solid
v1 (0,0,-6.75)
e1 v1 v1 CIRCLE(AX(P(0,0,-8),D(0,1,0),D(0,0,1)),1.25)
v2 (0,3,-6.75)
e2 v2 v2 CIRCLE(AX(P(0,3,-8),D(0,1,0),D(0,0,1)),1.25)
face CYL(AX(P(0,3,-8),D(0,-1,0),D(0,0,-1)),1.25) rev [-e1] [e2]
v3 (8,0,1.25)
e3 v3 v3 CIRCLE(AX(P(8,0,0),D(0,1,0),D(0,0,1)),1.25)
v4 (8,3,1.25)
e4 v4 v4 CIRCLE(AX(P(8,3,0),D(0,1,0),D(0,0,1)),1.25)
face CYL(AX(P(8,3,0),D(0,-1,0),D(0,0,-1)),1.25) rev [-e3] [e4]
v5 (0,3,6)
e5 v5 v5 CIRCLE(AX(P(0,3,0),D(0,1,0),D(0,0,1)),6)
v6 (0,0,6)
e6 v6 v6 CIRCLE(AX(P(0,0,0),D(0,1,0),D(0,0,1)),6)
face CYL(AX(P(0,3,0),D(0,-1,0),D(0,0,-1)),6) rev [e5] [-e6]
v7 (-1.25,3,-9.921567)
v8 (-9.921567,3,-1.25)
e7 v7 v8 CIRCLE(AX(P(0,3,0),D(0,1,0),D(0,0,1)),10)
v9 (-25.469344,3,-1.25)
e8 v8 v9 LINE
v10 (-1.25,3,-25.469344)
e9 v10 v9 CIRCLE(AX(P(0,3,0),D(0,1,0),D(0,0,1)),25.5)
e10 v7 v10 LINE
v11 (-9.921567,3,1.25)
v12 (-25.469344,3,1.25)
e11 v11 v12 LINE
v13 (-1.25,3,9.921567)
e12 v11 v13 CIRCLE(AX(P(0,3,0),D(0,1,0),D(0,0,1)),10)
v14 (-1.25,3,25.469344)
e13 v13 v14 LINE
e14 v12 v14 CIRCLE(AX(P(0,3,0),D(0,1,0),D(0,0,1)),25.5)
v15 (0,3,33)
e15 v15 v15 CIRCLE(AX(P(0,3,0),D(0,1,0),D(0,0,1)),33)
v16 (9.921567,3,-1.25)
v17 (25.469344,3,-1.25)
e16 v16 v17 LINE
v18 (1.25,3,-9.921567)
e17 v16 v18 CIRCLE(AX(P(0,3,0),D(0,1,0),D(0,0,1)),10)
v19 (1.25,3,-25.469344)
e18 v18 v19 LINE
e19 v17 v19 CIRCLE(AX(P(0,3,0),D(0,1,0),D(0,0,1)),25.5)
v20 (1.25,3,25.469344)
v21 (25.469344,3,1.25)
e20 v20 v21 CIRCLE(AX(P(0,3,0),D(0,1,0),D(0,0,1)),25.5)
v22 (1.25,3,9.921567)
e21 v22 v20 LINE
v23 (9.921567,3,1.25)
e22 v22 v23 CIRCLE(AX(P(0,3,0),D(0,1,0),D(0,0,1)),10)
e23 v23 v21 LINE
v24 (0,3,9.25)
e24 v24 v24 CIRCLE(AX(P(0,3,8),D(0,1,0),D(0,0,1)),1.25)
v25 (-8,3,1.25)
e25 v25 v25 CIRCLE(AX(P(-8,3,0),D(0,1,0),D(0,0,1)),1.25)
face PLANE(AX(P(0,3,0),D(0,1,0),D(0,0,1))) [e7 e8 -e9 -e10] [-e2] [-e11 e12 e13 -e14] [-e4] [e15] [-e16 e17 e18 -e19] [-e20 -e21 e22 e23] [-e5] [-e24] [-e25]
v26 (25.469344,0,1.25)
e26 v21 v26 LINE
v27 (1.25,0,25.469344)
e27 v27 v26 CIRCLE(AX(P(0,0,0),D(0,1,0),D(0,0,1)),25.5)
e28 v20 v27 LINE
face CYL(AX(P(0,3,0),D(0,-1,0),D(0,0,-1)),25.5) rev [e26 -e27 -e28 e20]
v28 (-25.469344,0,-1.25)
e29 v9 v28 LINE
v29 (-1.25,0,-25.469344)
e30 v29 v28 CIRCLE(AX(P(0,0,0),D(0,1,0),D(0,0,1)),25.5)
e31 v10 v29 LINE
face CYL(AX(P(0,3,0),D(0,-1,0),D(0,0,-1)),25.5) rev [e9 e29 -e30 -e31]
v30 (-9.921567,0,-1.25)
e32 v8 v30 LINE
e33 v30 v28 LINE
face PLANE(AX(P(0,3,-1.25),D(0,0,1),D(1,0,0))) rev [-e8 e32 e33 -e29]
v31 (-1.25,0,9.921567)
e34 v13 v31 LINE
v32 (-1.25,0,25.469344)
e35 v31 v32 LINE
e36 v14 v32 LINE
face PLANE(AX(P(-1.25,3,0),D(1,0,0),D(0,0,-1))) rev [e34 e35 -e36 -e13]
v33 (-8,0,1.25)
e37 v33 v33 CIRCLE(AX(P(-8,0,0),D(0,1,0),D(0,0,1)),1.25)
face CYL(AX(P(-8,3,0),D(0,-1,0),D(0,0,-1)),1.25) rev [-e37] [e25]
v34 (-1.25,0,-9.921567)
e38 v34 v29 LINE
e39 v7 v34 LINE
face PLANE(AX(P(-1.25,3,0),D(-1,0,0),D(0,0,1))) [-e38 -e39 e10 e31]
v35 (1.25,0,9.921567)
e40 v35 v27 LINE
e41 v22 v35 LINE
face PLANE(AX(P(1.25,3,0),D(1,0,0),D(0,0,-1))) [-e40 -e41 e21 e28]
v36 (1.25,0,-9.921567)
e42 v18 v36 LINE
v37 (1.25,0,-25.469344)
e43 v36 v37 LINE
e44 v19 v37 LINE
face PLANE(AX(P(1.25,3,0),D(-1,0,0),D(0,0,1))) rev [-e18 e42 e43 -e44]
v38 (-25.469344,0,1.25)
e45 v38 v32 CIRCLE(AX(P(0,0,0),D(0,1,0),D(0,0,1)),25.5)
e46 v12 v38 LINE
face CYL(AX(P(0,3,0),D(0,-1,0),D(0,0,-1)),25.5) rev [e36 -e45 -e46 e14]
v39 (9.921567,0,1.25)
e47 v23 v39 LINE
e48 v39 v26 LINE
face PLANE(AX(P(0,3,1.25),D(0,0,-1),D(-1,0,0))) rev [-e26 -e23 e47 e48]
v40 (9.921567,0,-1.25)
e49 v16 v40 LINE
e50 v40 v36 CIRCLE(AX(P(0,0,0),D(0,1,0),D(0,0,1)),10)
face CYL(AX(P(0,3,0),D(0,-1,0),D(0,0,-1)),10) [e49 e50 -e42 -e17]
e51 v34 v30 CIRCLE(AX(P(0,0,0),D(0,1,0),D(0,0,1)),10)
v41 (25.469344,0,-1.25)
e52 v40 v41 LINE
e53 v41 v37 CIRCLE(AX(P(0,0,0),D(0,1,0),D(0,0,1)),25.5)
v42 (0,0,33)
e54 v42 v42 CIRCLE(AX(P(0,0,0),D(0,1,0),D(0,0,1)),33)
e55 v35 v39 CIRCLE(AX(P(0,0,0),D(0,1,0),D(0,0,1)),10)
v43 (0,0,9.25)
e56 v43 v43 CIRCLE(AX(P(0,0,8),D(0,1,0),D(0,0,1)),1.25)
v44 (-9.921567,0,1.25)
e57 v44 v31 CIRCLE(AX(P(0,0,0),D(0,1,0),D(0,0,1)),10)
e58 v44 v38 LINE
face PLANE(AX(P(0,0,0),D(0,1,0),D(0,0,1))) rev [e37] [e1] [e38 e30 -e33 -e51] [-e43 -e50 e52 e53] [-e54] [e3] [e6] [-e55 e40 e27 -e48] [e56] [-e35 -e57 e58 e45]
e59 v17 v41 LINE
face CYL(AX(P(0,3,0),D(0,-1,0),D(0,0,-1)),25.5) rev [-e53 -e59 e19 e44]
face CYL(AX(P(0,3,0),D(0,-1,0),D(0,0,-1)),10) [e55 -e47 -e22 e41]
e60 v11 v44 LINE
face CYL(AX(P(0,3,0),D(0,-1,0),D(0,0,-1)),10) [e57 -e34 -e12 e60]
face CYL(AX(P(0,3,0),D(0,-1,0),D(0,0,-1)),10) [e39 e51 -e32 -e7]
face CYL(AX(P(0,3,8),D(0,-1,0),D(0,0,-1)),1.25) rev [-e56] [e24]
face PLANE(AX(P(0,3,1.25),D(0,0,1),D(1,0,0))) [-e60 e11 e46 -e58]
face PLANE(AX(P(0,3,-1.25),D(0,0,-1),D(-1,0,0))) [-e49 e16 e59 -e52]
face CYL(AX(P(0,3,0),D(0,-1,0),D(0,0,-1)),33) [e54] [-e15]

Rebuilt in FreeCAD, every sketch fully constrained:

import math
import FreeCAD as App
import Part
import Sketcher

doc = App.newDocument("Part")
params = doc.addObject("Spreadsheet::Sheet", "Params")
for row, (alias, value) in enumerate([
    ("sketch1_diameter", "66 mm"),
    ("sketch1_diameter2", "12 mm"),
    ("sketch1_radius", "10 mm"),
    ("sketch1_diameter3", "2.5 mm"),
    ("sketch1_radius2", "25.5 mm"),
    ("pad1_length", "3 mm"),
], start=1):
    params.set(f"A{row}", alias)
    params.set(f"B{row}", "=" + value)
    params.setAlias(f"B{row}", alias)

body = doc.addObject("PartDesign::Body", "Body")

# Sketch on XZ plane
sketch1 = body.newObject("Sketcher::SketchObject", "Sketch")
sketch1.AttachmentSupport = (doc.getObject("XZ_Plane"), [""])
sketch1.MapMode = "FlatFace"
sketch1.addGeometry([
    Part.Circle(App.Vector(0, 0, 0), App.Vector(0, 0, 1), 33),  # 0
    Part.ArcOfCircle(Part.Circle(App.Vector(0, 0, 0), App.Vector(0, 0, 1), 25.5), math.radians(-87), math.radians(-3)),  # 1
    Part.LineSegment(App.Vector(25.5, -1.2, 0), App.Vector(9.9, -1.2, 0)),  # 2
    Part.ArcOfCircle(Part.Circle(App.Vector(0, 0, 0), App.Vector(0, 0, 1), 10), math.radians(-83), math.radians(-7)),  # 3
    Part.LineSegment(App.Vector(1.2, -9.9, 0), App.Vector(1.2, -25.5, 0)),  # 4
    Part.ArcOfCircle(Part.Circle(App.Vector(0, 0, 0), App.Vector(0, 0, 1), 25.5), math.radians(-177), math.radians(-93)),  # 5
    Part.LineSegment(App.Vector(-1.2, -25.5, 0), App.Vector(-1.2, -9.9, 0)),  # 6
    Part.ArcOfCircle(Part.Circle(App.Vector(0, 0, 0), App.Vector(0, 0, 1), 10), math.radians(-173), math.radians(-97)),  # 7
    Part.LineSegment(App.Vector(-9.9, -1.2, 0), App.Vector(-25.5, -1.2, 0)),  # 8
    Part.ArcOfCircle(Part.Circle(App.Vector(0, 0, 0), App.Vector(0, 0, 1), 25.5), math.radians(93), math.radians(177)),  # 9
    Part.LineSegment(App.Vector(-25.5, 1.2, 0), App.Vector(-9.9, 1.2, 0)),  # 10
    Part.ArcOfCircle(Part.Circle(App.Vector(0, 0, 0), App.Vector(0, 0, 1), 10), math.radians(97), math.radians(173)),  # 11
    Part.LineSegment(App.Vector(-1.2, 9.9, 0), App.Vector(-1.2, 25.5, 0)),  # 12
    Part.ArcOfCircle(Part.Circle(App.Vector(0, 0, 0), App.Vector(0, 0, 1), 25.5), math.radians(3), math.radians(87)),  # 13
    Part.LineSegment(App.Vector(1.2, 25.5, 0), App.Vector(1.2, 9.9, 0)),  # 14
    Part.ArcOfCircle(Part.Circle(App.Vector(0, 0, 0), App.Vector(0, 0, 1), 10), math.radians(7), math.radians(83)),  # 15
    Part.LineSegment(App.Vector(9.9, 1.2, 0), App.Vector(25.5, 1.2, 0)),  # 16
    Part.Circle(App.Vector(0, -8, 0), App.Vector(0, 0, 1), 1.2),  # 17
    Part.Circle(App.Vector(0, 0, 0), App.Vector(0, 0, 1), 6),  # 18
    Part.Circle(App.Vector(-8, 0, 0), App.Vector(0, 0, 1), 1.2),  # 19
    Part.Circle(App.Vector(0, 8, 0), App.Vector(0, 0, 1), 1.2),  # 20
    Part.Circle(App.Vector(8, 0, 0), App.Vector(0, 0, 1), 1.2),  # 21
], False)
sketch1.addConstraint([
    Sketcher.Constraint("Coincident", 1, 2, 2, 1),
    Sketcher.Constraint("Coincident", 2, 2, 3, 2),
    Sketcher.Constraint("Coincident", 3, 1, 4, 1),
    Sketcher.Constraint("Coincident", 4, 2, 1, 1),
    Sketcher.Constraint("Coincident", 5, 2, 6, 1),
    Sketcher.Constraint("Coincident", 6, 2, 7, 2),
    Sketcher.Constraint("Coincident", 7, 1, 8, 1),
    Sketcher.Constraint("Coincident", 8, 2, 5, 1),
    Sketcher.Constraint("Coincident", 9, 2, 10, 1),
    Sketcher.Constraint("Coincident", 10, 2, 11, 2),
    Sketcher.Constraint("Coincident", 11, 1, 12, 1),
    Sketcher.Constraint("Coincident", 12, 2, 9, 1),
    Sketcher.Constraint("Coincident", 13, 2, 14, 1),
    Sketcher.Constraint("Coincident", 14, 2, 15, 2),
    Sketcher.Constraint("Coincident", 15, 1, 16, 1),
    Sketcher.Constraint("Coincident", 16, 2, 13, 1),
    Sketcher.Constraint("Horizontal", 2),
    Sketcher.Constraint("Vertical", 4),
    Sketcher.Constraint("Vertical", 6),
    Sketcher.Constraint("Horizontal", 8),
    Sketcher.Constraint("Horizontal", 10),
    Sketcher.Constraint("Vertical", 12),
    Sketcher.Constraint("Vertical", 14),
    Sketcher.Constraint("Horizontal", 16),
    Sketcher.Constraint("Coincident", 0, 3, -1, 1),
    Sketcher.Constraint("Coincident", 1, 3, -1, 1),
    Sketcher.Constraint("Coincident", 3, 3, -1, 1),
    Sketcher.Constraint("Coincident", 5, 3, -1, 1),
    Sketcher.Constraint("Coincident", 7, 3, -1, 1),
    Sketcher.Constraint("Coincident", 9, 3, -1, 1),
    Sketcher.Constraint("Coincident", 11, 3, -1, 1),
    Sketcher.Constraint("Coincident", 13, 3, -1, 1),
    Sketcher.Constraint("Coincident", 15, 3, -1, 1),
    Sketcher.Constraint("Coincident", 18, 3, -1, 1),
    Sketcher.Constraint("Equal", 1, 5),
    Sketcher.Constraint("Equal", 3, 7),
    Sketcher.Constraint("Equal", 5, 9),
    Sketcher.Constraint("Equal", 7, 11),
    Sketcher.Constraint("Equal", 9, 13),
    Sketcher.Constraint("Equal", 11, 15),
    Sketcher.Constraint("Equal", 17, 19),
    Sketcher.Constraint("Equal", 19, 20),
    Sketcher.Constraint("Equal", 20, 21),
    Sketcher.Constraint("Symmetric", 17, 3, 20, 3, -1, 1),
    Sketcher.Constraint("Symmetric", 19, 3, 21, 3, -1, 1),
    Sketcher.Constraint("PointOnObject", 17, 3, -2),
    Sketcher.Constraint("PointOnObject", 19, 3, -1),
    Sketcher.Constraint("Horizontal", 4, 2, 5, 2),
    Sketcher.Constraint("Horizontal", 2, 2, 7, 1),
    Sketcher.Constraint("Horizontal", 12, 2, 13, 2),
    Sketcher.Constraint("Horizontal", 10, 2, 15, 1),
    Sketcher.Constraint("Vertical", 8, 2, 9, 2),
    Sketcher.Constraint("Vertical", 6, 2, 11, 1),
    Sketcher.Constraint("Equal", 16, 4),
    Sketcher.Constraint("Diameter", 0, 66.0),
    Sketcher.Constraint("Diameter", 18, 12.0),
    Sketcher.Constraint("Radius", 3, 10.0),
    Sketcher.Constraint("Diameter", 17, 2.5),
    Sketcher.Constraint("Radius", 1, 25.5),
    Sketcher.Constraint("DistanceY", 17, 3, -1, 1, 8.0),
    Sketcher.Constraint("DistanceX", 19, 3, -1, 1, 8.0),
    Sketcher.Constraint("DistanceX", 5, 2, 4, 2, 2.5),
])
sketch1.setExpression("Constraints[54]", "Params.sketch1_diameter")
sketch1.setExpression("Constraints[55]", "Params.sketch1_diameter2")
sketch1.setExpression("Constraints[56]", "Params.sketch1_radius")
sketch1.setExpression("Constraints[57]", "Params.sketch1_diameter3")
sketch1.setExpression("Constraints[58]", "Params.sketch1_radius2")
pad1 = body.newObject("PartDesign::Pad", "Pad")
pad1.Profile = sketch1
pad1.setExpression("Length", "Params.pad1_length")
pad1.Reversed = True

doc.recompute()
